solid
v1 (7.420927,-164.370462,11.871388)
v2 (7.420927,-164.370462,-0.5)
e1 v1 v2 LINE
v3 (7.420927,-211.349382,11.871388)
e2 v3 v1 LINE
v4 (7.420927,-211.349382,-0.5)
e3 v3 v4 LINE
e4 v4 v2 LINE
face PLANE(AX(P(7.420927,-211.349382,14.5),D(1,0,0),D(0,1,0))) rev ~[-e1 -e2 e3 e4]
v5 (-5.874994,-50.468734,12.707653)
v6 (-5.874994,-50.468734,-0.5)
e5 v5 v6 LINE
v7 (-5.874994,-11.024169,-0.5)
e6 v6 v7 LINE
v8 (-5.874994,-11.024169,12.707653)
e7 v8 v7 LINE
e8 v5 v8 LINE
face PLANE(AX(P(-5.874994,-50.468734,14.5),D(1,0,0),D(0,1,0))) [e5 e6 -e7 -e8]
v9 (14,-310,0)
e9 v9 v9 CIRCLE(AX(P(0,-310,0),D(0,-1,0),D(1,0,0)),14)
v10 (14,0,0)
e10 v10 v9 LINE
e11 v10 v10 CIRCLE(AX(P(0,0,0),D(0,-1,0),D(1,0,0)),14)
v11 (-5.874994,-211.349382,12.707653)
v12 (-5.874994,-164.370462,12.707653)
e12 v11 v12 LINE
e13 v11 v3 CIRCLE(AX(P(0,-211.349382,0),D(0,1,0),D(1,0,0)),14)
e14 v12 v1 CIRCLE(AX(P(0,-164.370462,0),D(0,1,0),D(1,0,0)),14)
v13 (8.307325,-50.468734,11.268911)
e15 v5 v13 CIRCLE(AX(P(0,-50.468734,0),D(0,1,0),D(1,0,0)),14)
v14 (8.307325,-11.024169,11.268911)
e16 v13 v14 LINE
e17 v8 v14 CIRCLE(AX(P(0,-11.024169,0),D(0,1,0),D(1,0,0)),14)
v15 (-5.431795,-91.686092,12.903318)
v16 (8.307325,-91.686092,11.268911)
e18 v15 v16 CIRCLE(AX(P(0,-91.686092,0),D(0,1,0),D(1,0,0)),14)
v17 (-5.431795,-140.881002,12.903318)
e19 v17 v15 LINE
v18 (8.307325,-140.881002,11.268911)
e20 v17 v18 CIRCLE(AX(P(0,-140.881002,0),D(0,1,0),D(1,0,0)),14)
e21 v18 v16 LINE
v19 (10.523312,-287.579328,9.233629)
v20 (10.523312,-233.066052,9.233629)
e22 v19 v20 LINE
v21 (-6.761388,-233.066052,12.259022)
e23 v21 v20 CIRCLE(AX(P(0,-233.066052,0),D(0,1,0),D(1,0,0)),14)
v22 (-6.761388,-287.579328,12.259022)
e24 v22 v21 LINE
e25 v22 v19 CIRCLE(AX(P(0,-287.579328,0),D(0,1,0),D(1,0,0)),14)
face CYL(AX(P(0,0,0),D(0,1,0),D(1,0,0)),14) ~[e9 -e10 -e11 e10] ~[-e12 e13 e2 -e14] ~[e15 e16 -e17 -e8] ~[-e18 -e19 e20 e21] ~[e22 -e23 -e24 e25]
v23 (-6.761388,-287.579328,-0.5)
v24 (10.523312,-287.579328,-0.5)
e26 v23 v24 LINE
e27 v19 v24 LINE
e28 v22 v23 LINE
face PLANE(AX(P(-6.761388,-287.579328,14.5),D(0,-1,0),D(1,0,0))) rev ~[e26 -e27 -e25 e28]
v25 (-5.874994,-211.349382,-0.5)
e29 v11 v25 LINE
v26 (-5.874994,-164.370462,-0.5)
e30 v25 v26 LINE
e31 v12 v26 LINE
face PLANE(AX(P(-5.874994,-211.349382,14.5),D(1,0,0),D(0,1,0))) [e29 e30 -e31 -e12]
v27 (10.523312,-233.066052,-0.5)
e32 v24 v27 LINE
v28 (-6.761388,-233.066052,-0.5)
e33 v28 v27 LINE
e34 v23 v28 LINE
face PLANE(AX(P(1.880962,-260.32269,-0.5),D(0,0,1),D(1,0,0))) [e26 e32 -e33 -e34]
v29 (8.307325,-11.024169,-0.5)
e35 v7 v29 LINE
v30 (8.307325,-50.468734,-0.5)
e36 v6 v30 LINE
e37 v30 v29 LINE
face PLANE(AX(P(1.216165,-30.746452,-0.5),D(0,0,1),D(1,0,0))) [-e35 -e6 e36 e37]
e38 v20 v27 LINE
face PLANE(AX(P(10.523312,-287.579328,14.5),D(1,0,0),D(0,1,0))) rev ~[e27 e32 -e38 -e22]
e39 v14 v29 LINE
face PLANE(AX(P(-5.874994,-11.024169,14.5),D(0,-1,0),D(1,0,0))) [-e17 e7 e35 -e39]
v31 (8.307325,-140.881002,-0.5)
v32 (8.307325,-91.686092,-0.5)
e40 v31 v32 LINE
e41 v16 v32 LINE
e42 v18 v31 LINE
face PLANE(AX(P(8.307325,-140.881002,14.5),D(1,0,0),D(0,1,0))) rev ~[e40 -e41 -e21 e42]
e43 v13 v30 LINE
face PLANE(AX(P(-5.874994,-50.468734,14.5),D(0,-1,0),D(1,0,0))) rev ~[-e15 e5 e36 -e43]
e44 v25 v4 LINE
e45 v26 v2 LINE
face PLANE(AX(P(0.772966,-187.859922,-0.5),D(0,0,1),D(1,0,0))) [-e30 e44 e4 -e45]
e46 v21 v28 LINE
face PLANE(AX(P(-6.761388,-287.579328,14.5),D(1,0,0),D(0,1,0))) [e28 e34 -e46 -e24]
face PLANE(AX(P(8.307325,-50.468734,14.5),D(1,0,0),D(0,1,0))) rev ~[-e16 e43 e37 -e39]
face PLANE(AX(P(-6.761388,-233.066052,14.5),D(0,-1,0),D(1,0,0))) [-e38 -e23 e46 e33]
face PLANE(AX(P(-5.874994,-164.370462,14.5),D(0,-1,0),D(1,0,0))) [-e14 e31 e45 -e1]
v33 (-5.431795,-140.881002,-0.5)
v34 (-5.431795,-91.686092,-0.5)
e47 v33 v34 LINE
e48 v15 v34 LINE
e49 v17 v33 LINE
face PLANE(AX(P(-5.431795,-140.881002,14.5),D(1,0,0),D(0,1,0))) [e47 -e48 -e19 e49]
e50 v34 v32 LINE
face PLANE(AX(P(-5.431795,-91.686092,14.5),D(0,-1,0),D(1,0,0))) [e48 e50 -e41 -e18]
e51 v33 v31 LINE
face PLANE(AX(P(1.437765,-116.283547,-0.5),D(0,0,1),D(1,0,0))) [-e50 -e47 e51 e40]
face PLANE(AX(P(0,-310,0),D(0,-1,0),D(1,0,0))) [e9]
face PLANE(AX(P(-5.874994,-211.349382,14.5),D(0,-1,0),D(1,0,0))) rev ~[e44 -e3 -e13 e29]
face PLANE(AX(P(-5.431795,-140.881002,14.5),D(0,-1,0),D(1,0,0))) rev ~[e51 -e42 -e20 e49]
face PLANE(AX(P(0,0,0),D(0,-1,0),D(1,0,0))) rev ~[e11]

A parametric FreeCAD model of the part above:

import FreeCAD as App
import Part
import Sketcher

doc = App.newDocument("Part")
body = doc.addObject("PartDesign::Body", "Body")

sketch1 = doc.addObject("Sketcher::SketchObject", "Sketch")
body.addObject(sketch1)
sketch1.AttachmentSupport = (doc.XZ_Plane, [""])
sketch1.MapMode = "FlatFace"
sketch1.addGeometry(Part.Circle(App.Vector(0, 0, 0), App.Vector(0, 0, 1), 14), False)
sketch1.addConstraint(Sketcher.Constraint("Coincident", 0, 3, -1, 1))
sketch1.addConstraint(Sketcher.Constraint("Diameter", 0, 28.0))
pad1 = doc.addObject("PartDesign::Pad", "Pad")
body.addObject(pad1)
pad1.Profile = sketch1
pad1.Length = 310

sketch2 = doc.addObject("Sketcher::SketchObject", "Sketch001")
body.addObject(sketch2)
sketch2.AttachmentSupport = (doc.XY_Plane, [""])
sketch2.MapMode = "FlatFace"
sketch2.AttachmentOffset = App.Placement(App.Vector(0, 0, 14.5), App.Rotation())
sketch2.addGeometry(Part.LineSegment(App.Vector(-6, -11, 0), App.Vector(-6, -50, 0)), False)
sketch2.addGeometry(Part.LineSegment(App.Vector(-6, -50, 0), App.Vector(8, -50, 0)), False)
sketch2.addGeometry(Part.LineSegment(App.Vector(8, -50, 0), App.Vector(8, -11, 0)), False)
sketch2.addGeometry(Part.LineSegment(App.Vector(8, -11, 0), App.Vector(-6, -11, 0)), False)
sketch2.addGeometry(Part.LineSegment(App.Vector(-5, -92, 0), App.Vector(-5, -141, 0)), False)
sketch2.addGeometry(Part.LineSegment(App.Vector(-5, -141, 0), App.Vector(8, -141, 0)), False)
sketch2.addGeometry(Part.LineSegment(App.Vector(8, -141, 0), App.Vector(8, -92, 0)), False)
sketch2.addGeometry(Part.LineSegment(App.Vector(8, -92, 0), App.Vector(-5, -92, 0)), False)
sketch2.addGeometry(Part.LineSegment(App.Vector(-6, -164, 0), App.Vector(-6, -211, 0)), False)
sketch2.addGeometry(Part.LineSegment(App.Vector(-6, -211, 0), App.Vector(7, -211, 0)), False)
sketch2.addGeometry(Part.LineSegment(App.Vector(7, -211, 0), App.Vector(7, -164, 0)), False)
sketch2.addGeometry(Part.LineSegment(App.Vector(7, -164, 0), App.Vector(-6, -164, 0)), False)
sketch2.addGeometry(Part.LineSegment(App.Vector(-7, -233, 0), App.Vector(-7, -288, 0)), False)
sketch2.addGeometry(Part.LineSegment(App.Vector(-7, -288, 0), App.Vector(11, -288, 0)), False)
sketch2.addGeometry(Part.LineSegment(App.Vector(11, -288, 0), App.Vector(11, -233, 0)), False)
sketch2.addGeometry(Part.LineSegment(App.Vector(11, -233, 0), App.Vector(-7, -233, 0)), False)
sketch2.addConstraint(Sketcher.Constraint("Coincident", 0, 2, 1, 1))
sketch2.addConstraint(Sketcher.Constraint("Coincident", 1, 2, 2, 1))
sketch2.addConstraint(Sketcher.Constraint("Coincident", 2, 2, 3, 1))
sketch2.addConstraint(Sketcher.Constraint("Coincident", 3, 2, 0, 1))
sketch2.addConstraint(Sketcher.Constraint("Coincident", 4, 2, 5, 1))
sketch2.addConstraint(Sketcher.Constraint("Coincident", 5, 2, 6, 1))
sketch2.addConstraint(Sketcher.Constraint("Coincident", 6, 2, 7, 1))
sketch2.addConstraint(Sketcher.Constraint("Coincident", 7, 2, 4, 1))
sketch2.addConstraint(Sketcher.Constraint("Coincident", 8, 2, 9, 1))
sketch2.addConstraint(Sketcher.Constraint("Coincident", 9, 2, 10, 1))
sketch2.addConstraint(Sketcher.Constraint("Coincident", 10, 2, 11, 1))
sketch2.addConstraint(Sketcher.Constraint("Coincident", 11, 2, 8, 1))
sketch2.addConstraint(Sketcher.Constraint("Coincident", 12, 2, 13, 1))
sketch2.addConstraint(Sketcher.Constraint("Coincident", 13, 2, 14, 1))
sketch2.addConstraint(Sketcher.Constraint("Coincident", 14, 2, 15, 1))
sketch2.addConstraint(Sketcher.Constraint("Coincident", 15, 2, 12, 1))
sketch2.addConstraint(Sketcher.Constraint("Vertical", 0))
sketch2.addConstraint(Sketcher.Constraint("Horizontal", 1))
sketch2.addConstraint(Sketcher.Constraint("Vertical", 2))
sketch2.addConstraint(Sketcher.Constraint("Horizontal", 3))
sketch2.addConstraint(Sketcher.Constraint("Vertical", 4))
sketch2.addConstraint(Sketcher.Constraint("Horizontal", 5))
sketch2.addConstraint(Sketcher.Constraint("Vertical", 6))
sketch2.addConstraint(Sketcher.Constraint("Horizontal", 7))
sketch2.addConstraint(Sketcher.Constraint("Vertical", 8))
sketch2.addConstraint(Sketcher.Constraint("Horizontal", 9))
sketch2.addConstraint(Sketcher.Constraint("Vertical", 10))
sketch2.addConstraint(Sketcher.Constraint("Horizontal", 11))
sketch2.addConstraint(Sketcher.Constraint("Vertical", 12))
sketch2.addConstraint(Sketcher.Constraint("Horizontal", 13))
sketch2.addConstraint(Sketcher.Constraint("Vertical", 14))
sketch2.addConstraint(Sketcher.Constraint("Horizontal", 15))
sketch2.addConstraint(Sketcher.Constraint("Vertical", 2, 2, 5, 2))
sketch2.addConstraint(Sketcher.Constraint("Vertical", 3, 2, 8, 2))
sketch2.addConstraint(Sketcher.Constraint("DistanceX", 13, 1, 13, 2, 17.2847))
sketch2.addConstraint(Sketcher.Constraint("DistanceY", 4, 2, -1, 1, 140.881002))
sketch2.addConstraint(Sketcher.Constraint("DistanceX", 1, 1, 1, 2, 14.182319))
sketch2.addConstraint(Sketcher.Constraint("DistanceX", 5, 1, 5, 2, 13.73912))
sketch2.addConstraint(Sketcher.Constraint("DistanceX", 9, 1, 9, 2, 13.295921))
sketch2.addConstraint(Sketcher.Constraint("DistanceY", 4, 2, 4, 1, 49.19491))
sketch2.addConstraint(Sketcher.Constraint("DistanceY", 8, 2, 8, 1, 46.978921))
sketch2.addConstraint(Sketcher.Constraint("DistanceY", 0, 2, 0, 1, 39.444565))
sketch2.addConstraint(Sketcher.Constraint("DistanceY", 12, 2, 12, 1, 54.513276))
sketch2.addConstraint(Sketcher.Constraint("DistanceY", 2, 2, -1, 1, 11.024169))
sketch2.addConstraint(Sketcher.Constraint("DistanceY", 10, 2, -1, 1, 164.370462))
sketch2.addConstraint(Sketcher.Constraint("DistanceX", 12, 2, -1, 1, 6.761388))
sketch2.addConstraint(Sketcher.Constraint("DistanceY", 14, 2, 9, 2, 21.71667))
sketch2.addConstraint(Sketcher.Constraint("DistanceX", 0, 2, -1, 1, 5.874994))
pocket1 = doc.addObject("PartDesign::Pocket", "Pocket")
body.addObject(pocket1)
pocket1.Profile = sketch2
pocket1.Length = 15

doc.recompute()
